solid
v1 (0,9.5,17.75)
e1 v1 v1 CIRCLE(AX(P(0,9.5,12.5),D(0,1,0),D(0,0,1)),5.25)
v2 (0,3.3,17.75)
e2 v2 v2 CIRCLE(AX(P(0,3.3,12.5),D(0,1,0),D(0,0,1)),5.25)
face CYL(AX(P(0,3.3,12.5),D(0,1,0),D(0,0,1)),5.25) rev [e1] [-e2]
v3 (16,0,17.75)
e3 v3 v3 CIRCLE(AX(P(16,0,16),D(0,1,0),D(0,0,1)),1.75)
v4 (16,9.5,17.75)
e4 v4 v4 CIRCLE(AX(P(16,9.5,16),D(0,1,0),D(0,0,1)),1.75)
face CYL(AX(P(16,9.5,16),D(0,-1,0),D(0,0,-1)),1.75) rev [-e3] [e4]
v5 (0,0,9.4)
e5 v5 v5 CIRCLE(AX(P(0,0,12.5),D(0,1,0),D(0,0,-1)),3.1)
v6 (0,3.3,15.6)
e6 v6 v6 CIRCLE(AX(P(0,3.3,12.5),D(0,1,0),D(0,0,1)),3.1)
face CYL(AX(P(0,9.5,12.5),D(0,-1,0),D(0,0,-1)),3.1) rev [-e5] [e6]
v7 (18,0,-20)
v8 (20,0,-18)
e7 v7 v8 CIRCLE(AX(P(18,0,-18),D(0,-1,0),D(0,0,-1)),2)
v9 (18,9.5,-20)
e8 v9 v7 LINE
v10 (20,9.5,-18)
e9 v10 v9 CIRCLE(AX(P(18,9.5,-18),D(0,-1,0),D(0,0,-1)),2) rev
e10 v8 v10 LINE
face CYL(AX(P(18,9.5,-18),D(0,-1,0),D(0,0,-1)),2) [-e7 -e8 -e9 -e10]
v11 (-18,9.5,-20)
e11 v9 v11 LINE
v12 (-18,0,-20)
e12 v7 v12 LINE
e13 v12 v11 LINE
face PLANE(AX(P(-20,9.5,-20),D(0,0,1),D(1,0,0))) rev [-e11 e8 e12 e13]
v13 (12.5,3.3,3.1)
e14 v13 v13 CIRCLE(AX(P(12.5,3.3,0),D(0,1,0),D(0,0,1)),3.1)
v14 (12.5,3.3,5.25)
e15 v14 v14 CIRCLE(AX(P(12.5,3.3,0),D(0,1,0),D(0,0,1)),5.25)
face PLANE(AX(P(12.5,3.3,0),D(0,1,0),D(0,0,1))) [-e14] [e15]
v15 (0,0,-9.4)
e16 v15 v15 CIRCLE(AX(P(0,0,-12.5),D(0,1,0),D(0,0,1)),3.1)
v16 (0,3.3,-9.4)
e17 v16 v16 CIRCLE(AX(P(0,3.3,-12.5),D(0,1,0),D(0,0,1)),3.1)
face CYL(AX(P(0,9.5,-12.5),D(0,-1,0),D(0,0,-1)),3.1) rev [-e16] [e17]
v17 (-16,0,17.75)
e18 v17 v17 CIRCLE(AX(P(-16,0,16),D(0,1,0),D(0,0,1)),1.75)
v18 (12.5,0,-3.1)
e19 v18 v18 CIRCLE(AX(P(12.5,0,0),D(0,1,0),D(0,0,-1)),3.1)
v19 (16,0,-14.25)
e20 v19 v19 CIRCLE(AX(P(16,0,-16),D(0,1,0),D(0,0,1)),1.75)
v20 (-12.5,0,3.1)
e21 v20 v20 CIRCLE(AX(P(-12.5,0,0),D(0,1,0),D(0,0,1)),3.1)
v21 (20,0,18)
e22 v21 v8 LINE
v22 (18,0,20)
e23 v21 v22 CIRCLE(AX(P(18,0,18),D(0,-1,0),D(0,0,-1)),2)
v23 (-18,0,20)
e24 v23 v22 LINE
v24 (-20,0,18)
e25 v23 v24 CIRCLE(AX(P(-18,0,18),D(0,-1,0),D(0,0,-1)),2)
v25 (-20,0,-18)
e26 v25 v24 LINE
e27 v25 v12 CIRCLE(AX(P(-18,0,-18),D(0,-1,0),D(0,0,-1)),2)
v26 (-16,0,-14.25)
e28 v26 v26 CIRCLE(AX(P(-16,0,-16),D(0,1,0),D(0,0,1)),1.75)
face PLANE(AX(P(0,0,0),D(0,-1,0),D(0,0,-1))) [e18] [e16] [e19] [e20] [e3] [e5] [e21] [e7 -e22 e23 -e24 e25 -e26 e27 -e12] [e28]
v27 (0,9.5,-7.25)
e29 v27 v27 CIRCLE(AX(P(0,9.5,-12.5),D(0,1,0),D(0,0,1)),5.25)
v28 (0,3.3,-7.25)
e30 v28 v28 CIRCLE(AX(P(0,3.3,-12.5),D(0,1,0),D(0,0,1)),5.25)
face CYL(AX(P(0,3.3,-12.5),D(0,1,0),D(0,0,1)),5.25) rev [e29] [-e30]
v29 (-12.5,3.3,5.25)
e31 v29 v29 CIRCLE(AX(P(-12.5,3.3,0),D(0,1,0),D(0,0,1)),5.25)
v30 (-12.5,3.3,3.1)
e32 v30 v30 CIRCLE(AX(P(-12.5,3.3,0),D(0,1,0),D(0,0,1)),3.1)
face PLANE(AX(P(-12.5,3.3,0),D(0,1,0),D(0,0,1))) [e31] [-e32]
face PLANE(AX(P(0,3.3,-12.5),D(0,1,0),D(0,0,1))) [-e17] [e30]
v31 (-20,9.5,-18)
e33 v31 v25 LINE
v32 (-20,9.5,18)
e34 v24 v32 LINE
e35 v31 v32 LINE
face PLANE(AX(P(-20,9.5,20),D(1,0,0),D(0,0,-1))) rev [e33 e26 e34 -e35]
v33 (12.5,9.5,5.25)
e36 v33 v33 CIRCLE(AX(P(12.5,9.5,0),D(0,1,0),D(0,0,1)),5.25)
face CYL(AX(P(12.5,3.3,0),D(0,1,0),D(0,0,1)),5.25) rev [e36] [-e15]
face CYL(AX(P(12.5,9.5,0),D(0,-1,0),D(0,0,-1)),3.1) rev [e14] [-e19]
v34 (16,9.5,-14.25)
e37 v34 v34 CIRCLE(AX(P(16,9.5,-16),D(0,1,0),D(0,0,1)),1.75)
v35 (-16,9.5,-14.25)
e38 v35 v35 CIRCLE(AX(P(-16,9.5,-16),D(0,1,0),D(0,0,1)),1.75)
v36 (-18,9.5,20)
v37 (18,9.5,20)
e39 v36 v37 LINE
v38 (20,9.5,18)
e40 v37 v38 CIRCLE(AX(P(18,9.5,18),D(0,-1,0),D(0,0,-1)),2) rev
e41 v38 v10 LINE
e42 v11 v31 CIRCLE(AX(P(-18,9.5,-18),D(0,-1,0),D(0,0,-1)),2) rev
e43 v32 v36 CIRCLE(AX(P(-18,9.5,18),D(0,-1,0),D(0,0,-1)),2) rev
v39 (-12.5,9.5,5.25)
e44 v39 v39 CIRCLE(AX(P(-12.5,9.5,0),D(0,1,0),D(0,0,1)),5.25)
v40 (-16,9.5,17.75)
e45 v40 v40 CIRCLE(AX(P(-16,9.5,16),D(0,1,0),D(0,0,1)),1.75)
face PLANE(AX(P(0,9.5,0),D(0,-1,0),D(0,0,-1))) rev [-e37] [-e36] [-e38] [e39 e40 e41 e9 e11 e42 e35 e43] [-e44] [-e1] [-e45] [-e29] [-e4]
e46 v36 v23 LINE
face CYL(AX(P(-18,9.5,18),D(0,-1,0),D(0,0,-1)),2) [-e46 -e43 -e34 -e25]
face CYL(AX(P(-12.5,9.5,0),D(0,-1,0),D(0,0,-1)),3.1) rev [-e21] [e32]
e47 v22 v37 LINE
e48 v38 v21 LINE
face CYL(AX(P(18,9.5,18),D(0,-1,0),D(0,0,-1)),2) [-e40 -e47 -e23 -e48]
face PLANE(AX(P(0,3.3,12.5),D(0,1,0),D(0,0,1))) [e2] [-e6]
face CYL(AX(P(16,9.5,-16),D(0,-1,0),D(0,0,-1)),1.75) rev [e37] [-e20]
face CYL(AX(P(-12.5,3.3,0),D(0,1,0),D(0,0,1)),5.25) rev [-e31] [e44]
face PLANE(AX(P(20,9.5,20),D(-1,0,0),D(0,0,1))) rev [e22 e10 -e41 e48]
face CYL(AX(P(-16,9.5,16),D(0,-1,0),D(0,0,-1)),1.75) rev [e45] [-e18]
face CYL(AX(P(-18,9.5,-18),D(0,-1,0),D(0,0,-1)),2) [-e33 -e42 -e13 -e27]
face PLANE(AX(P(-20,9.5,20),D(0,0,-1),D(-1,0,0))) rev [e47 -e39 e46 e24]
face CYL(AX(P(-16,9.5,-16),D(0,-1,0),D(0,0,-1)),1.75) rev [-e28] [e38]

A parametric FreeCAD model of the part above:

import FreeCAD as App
import Part
import Sketcher
from FreeCAD import Vector
Q = App.Units.Quantity


def edges_at(feature, points):
    """Names of the edges that pass closest to the given points."""
    edges = feature.Shape.Edges
    near = lambda p: min(range(len(edges)), key=lambda i: edges[i].distToShape(Part.Vertex(*p))[0])
    return sorted({f"Edge{near(p) + 1}" for p in points})

doc = App.newDocument("Part")
params = doc.addObject("Spreadsheet::Sheet", "Params")
for row, (alias, value) in enumerate([
    ("sketch1_diameter", "3.5 mm"),
    ("sketch1_diameter2", "6.2 mm"),
    ("sketch1_width", "40 mm"),
    ("pad1_length", "9.5 mm"),
    ("fillet_radius", "2 mm"),
    ("sketch2_diameter", "10.5 mm"),
    ("pocket1_length", "6.2 mm"),
], start=1):
    params.set(f"A{row}", alias)
    params.set(f"B{row}", "=" + value)
    params.setAlias(f"B{row}", alias)

body = doc.addObject("PartDesign::Body", "Body")

sketch1 = doc.addObject("Sketcher::SketchObject", "Sketch")
body.addObject(sketch1)
sketch1.AttachmentSupport = (doc.XZ_Plane, [""])
sketch1.MapMode = "FlatFace"
sketch1.addGeometry(Part.LineSegment(Vector(-20, -20, 0), Vector(-20, 20, 0)), False)
sketch1.addGeometry(Part.LineSegment(Vector(-20, 20, 0), Vector(20, 20, 0)), False)
sketch1.addGeometry(Part.LineSegment(Vector(20, 20, 0), Vector(20, -20, 0)), False)
sketch1.addGeometry(Part.LineSegment(Vector(20, -20, 0), Vector(-20, -20, 0)), False)
sketch1.addGeometry(Part.Circle(Vector(-16, 16, 0), Vector(0, 0, 1), 1.75), False)
sketch1.addGeometry(Part.Circle(Vector(0, 12.5, 0), Vector(0, 0, 1), 3.1), False)
sketch1.addGeometry(Part.Circle(Vector(16, 16, 0), Vector(0, 0, 1), 1.75), False)
sketch1.addGeometry(Part.Circle(Vector(-12.5, 0, 0), Vector(0, 0, 1), 3.1), False)
sketch1.addGeometry(Part.Circle(Vector(-16, -16, 0), Vector(0, 0, 1), 1.75), False)
sketch1.addGeometry(Part.Circle(Vector(12.5, 0, 0), Vector(0, 0, 1), 3.1), False)
sketch1.addGeometry(Part.Circle(Vector(0, -12.5, 0), Vector(0, 0, 1), 3.1), False)
sketch1.addGeometry(Part.Circle(Vector(16, -16, 0), Vector(0, 0, 1), 1.75), False)
sketch1.addConstraint(Sketcher.Constraint("Coincident", 0, 2, 1, 1))
sketch1.addConstraint(Sketcher.Constraint("Coincident", 1, 2, 2, 1))
sketch1.addConstraint(Sketcher.Constraint("Coincident", 2, 2, 3, 1))
sketch1.addConstraint(Sketcher.Constraint("Coincident", 3, 2, 0, 1))
sketch1.addConstraint(Sketcher.Constraint("Vertical", 0))
sketch1.addConstraint(Sketcher.Constraint("Horizontal", 1))
sketch1.addConstraint(Sketcher.Constraint("Vertical", 2))
sketch1.addConstraint(Sketcher.Constraint("Horizontal", 3))
sketch1.addConstraint(Sketcher.Constraint("Equal", 4, 6))
sketch1.addConstraint(Sketcher.Constraint("Equal", 5, 7))
sketch1.addConstraint(Sketcher.Constraint("Equal", 6, 8))
sketch1.addConstraint(Sketcher.Constraint("Equal", 7, 9))
sketch1.addConstraint(Sketcher.Constraint("Equal", 9, 10))
sketch1.addConstraint(Sketcher.Constraint("Equal", 8, 11))
sketch1.addConstraint(Sketcher.Constraint("Symmetric", 6, 3, 8, 3, -1, 1))
sketch1.addConstraint(Sketcher.Constraint("Symmetric", 7, 3, 9, 3, -1, 1))
sketch1.addConstraint(Sketcher.Constraint("Symmetric", 5, 3, 10, 3, -1, 1))
sketch1.addConstraint(Sketcher.Constraint("Symmetric", 4, 3, 11, 3, -1, 1))
sketch1.addConstraint(Sketcher.Constraint("Symmetric", 0, 2, 2, 2, -1, 1))
sketch1.addConstraint(Sketcher.Constraint("Symmetric", 4, 3, 6, 3, -2))
sketch1.addConstraint(Sketcher.Constraint("PointOnObject", 5, 3, -2))
sketch1.addConstraint(Sketcher.Constraint("PointOnObject", 7, 3, -1))
sketch1.addConstraint(Sketcher.Constraint("Equal", 3, 0))
sketch1.addConstraint(Sketcher.Constraint("Diameter", 4, Q("3.5 mm")))
sketch1.addConstraint(Sketcher.Constraint("Diameter", 5, Q("6.2 mm")))
sketch1.addConstraint(Sketcher.Constraint("DistanceX", 1, 1, 1, 2, Q("40 mm")))
sketch1.addConstraint(Sketcher.Constraint("DistanceX", 4, 3, -1, 1, Q("16 mm")))
sketch1.addConstraint(Sketcher.Constraint("DistanceY", -1, 1, 4, 3, Q("16 mm")))
sketch1.addConstraint(Sketcher.Constraint("DistanceX", 7, 3, 9, 3, Q("25 mm")))
sketch1.addConstraint(Sketcher.Constraint("DistanceY", 10, 3, 5, 3, Q("25 mm")))
sketch1.setExpression("Constraints[23]", "Params.sketch1_diameter")
sketch1.setExpression("Constraints[24]", "Params.sketch1_diameter2")
sketch1.setExpression("Constraints[25]", "Params.sketch1_width")
pad1 = doc.addObject("PartDesign::Pad", "Pad")
body.addObject(pad1)
pad1.Profile = sketch1
pad1.setExpression("Length", "Params.pad1_length")
pad1.Reversed = True
doc.recompute()

fillet = doc.addObject("PartDesign::Fillet", "Fillet")
body.addObject(fillet)
fillet.Base = (pad1, edges_at(pad1, [
    (20, 4.75, 20),
    (-20, 4.75, 20),
    (-20, 4.75, -20),
    (20, 4.75, -20),
]))
fillet.setExpression("Radius", "Params.fillet_radius")

sketch2 = doc.addObject("Sketcher::SketchObject", "Sketch001")
body.addObject(sketch2)
sketch2.AttachmentSupport = (doc.XZ_Plane, [""])
sketch2.MapMode = "FlatFace"
sketch2.AttachmentOffset = App.Placement(Vector(0, 0, -9.5), App.Rotation())
sketch2.addGeometry(Part.Circle(Vector(0, -12.5, 0), Vector(0, 0, 1), 5.25), False)
sketch2.addGeometry(Part.Circle(Vector(12.5, 0, 0), Vector(0, 0, 1), 5.25), False)
sketch2.addGeometry(Part.Circle(Vector(0, 12.5, 0), Vector(0, 0, 1), 5.25), False)
sketch2.addGeometry(Part.Circle(Vector(-12.5, 0, 0), Vector(0, 0, 1), 5.25), False)
sketch2.addConstraint(Sketcher.Constraint("Equal", 0, 1))
sketch2.addConstraint(Sketcher.Constraint("Equal", 1, 2))
sketch2.addConstraint(Sketcher.Constraint("Equal", 2, 3))
sketch2.addConstraint(Sketcher.Constraint("Symmetric", 0, 3, 2, 3, -1, 1))
sketch2.addConstraint(Sketcher.Constraint("Symmetric", 1, 3, 3, 3, -1, 1))
sketch2.addConstraint(Sketcher.Constraint("PointOnObject", 0, 3, -2))
sketch2.addConstraint(Sketcher.Constraint("PointOnObject", 1, 3, -1))
sketch2.addConstraint(Sketcher.Constraint("Diameter", 0, Q("10.5 mm")))
sketch2.addConstraint(Sketcher.Constraint("DistanceY", 0, 3, 2, 3, Q("25 mm")))
sketch2.addConstraint(Sketcher.Constraint("DistanceX", 3, 3, 1, 3, Q("25 mm")))
sketch2.setExpression("Constraints[7]", "Params.sketch2_diameter")
pocket1 = doc.addObject("PartDesign::Pocket", "Pocket")
body.addObject(pocket1)
pocket1.Profile = sketch2
pocket1.setExpression("Length", "Params.pocket1_length")
pocket1.Reversed = True

doc.recompute()
